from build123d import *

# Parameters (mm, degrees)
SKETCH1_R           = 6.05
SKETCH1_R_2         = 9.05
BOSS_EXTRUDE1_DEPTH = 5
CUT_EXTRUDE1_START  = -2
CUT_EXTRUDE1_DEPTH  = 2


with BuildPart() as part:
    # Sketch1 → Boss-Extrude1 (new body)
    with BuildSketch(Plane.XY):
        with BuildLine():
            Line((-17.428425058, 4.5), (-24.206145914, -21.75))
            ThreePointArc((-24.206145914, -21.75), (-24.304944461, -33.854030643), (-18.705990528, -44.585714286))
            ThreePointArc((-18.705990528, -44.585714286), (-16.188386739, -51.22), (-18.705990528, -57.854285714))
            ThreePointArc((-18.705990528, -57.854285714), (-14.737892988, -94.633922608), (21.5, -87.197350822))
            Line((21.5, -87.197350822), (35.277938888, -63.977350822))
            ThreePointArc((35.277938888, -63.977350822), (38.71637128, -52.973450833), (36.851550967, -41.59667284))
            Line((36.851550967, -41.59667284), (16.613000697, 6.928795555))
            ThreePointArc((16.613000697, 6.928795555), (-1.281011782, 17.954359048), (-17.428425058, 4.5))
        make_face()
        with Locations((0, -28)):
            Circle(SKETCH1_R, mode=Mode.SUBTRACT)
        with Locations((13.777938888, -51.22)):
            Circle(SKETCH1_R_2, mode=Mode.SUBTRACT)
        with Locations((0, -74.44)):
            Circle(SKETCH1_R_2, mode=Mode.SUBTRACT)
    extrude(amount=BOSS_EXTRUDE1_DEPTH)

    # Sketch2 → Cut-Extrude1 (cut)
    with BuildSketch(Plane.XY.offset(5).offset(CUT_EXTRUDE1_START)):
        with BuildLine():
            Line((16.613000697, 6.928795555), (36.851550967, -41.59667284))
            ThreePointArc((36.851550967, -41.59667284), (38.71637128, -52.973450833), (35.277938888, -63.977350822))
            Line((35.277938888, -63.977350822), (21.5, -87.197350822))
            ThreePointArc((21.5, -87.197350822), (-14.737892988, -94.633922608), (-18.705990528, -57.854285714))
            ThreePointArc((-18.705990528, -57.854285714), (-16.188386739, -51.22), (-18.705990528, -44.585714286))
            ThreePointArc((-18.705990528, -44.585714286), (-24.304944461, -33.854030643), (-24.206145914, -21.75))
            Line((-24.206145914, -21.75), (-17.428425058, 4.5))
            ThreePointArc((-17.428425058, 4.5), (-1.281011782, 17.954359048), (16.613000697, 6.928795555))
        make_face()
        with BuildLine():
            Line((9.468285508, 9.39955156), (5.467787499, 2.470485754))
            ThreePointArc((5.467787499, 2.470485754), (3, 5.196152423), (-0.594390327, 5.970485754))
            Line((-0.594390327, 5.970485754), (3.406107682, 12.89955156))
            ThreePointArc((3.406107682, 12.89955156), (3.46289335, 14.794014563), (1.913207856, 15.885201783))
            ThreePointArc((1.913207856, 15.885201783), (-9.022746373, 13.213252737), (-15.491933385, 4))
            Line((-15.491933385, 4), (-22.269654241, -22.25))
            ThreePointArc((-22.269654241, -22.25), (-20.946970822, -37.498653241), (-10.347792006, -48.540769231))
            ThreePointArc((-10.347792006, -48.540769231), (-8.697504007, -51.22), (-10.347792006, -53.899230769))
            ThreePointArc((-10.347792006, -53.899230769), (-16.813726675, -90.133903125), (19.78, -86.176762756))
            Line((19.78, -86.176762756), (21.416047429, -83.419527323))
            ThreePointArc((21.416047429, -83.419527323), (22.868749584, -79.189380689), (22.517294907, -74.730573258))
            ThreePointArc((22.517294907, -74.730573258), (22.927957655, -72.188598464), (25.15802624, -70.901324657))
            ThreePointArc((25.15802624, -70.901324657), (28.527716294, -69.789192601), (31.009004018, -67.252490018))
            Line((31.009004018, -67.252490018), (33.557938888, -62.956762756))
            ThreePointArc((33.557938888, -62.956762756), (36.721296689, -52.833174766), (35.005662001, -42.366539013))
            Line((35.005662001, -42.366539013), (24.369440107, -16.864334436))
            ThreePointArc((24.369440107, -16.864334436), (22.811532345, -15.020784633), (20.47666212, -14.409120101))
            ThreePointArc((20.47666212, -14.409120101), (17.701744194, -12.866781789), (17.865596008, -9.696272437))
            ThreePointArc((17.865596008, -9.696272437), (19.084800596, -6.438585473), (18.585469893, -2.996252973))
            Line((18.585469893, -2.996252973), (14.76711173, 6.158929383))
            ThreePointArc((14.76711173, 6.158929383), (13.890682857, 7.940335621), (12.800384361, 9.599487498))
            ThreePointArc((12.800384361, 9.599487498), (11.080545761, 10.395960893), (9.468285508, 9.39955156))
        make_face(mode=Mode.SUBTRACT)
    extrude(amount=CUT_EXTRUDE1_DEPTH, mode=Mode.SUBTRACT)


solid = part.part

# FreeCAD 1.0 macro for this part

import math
import FreeCAD as App
import Part
import Sketcher

V = App.Vector
Q = App.Units.Quantity

doc = App.newDocument("Part")
params = doc.addObject("Spreadsheet::Sheet", "Params")
for row, (alias, value) in enumerate([
    ("sketch1_radius", "25 mm"),
    ("sketch1_radius2", "10 mm"),
    ("sketch1_radius3", "18 mm"),
    ("sketch1_diameter", "18.1 mm"),
    ("sketch1_diameter2", "12.1 mm"),
    ("pad1_length", "5 mm"),
    ("sketch2_radius", "18 mm"),
    ("sketch2_radius2", "25 mm"),
    ("sketch2_radius3", "10 mm"),
    ("sketch2_radius4", "2 mm"),
    ("sketch2_radius5", "16 mm"),
    ("pocket1_length", "2 mm"),
], start=1):
    params.set(f"A{row}", alias)
    params.set(f"B{row}", "=" + value)
    params.setAlias(f"B{row}", alias)

body = doc.addObject("PartDesign::Body", "Body")

# Sketch on XY plane
sketch1 = body.newObject("Sketcher::SketchObject", "Sketch")
sketch1.AttachmentSupport = (doc.getObject("XY_Plane"), [""])
sketch1.MapMode = "FlatFace"
sketch1.addGeometry([
    Part.LineSegment(V(-17, 4, 0), V(-24, -22, 0)),  # 0
    Part.ArcOfCircle(Part.Circle(V(0, -28, 0), V(0, 0, 1), 25), math.radians(166), math.radians(222)),  # 1
    Part.ArcOfCircle(Part.Circle(V(-26, -51, 0), V(0, 0, 1), 10), math.radians(-42), math.radians(42)),  # 2
    Part.ArcOfCircle(Part.Circle(V(0, -74, 0), V(0, 0, 1), 25), math.radians(138), math.radians(329)),  # 3
    Part.LineSegment(V(22, -87, 0), V(35, -64, 0)),  # 4
    Part.ArcOfCircle(Part.Circle(V(14, -51, 0), V(0, 0, 1), 25), math.radians(-31), math.radians(23)),  # 5
    Part.LineSegment(V(37, -42, 0), V(17, 7, 0)),  # 6
    Part.ArcOfCircle(Part.Circle(V(0, 0, 0), V(0, 0, 1), 18), math.radians(23), math.radians(166)),  # 7
    Part.Circle(V(0, -74, 0), V(0, 0, 1), 9),  # 8
    Part.Circle(V(0, -28, 0), V(0, 0, 1), 6),  # 9
    Part.Circle(V(14, -51, 0), V(0, 0, 1), 9),  # 10
], False)
sketch1.addConstraint([
    Sketcher.Constraint("Tangent", 0, 2, 1, 1),
    Sketcher.Constraint("Tangent", 1, 2, 2, 2),
    Sketcher.Constraint("Tangent", 2, 1, 3, 1),
    Sketcher.Constraint("Tangent", 3, 2, 4, 1),
    Sketcher.Constraint("Tangent", 4, 2, 5, 1),
    Sketcher.Constraint("Tangent", 5, 2, 6, 1),
    Sketcher.Constraint("Tangent", 6, 2, 7, 1),
    Sketcher.Constraint("Tangent", 7, 2, 0, 1),
    Sketcher.Constraint("Coincident", 7, 3, -1, 1),
    Sketcher.Constraint("Coincident", 8, 3, 3, 3),
    Sketcher.Constraint("Coincident", 9, 3, 1, 3),
    Sketcher.Constraint("Coincident", 10, 3, 5, 3),
    Sketcher.Constraint("Equal", 1, 3),
    Sketcher.Constraint("Equal", 3, 5),
    Sketcher.Constraint("Equal", 8, 10),
    Sketcher.Constraint("PointOnObject", 1, 3, -2),
    Sketcher.Constraint("PointOnObject", 3, 3, -2),
    Sketcher.Constraint("Horizontal", 2, 3, 5, 3),
    Sketcher.Constraint("Radius", 1, Q("25 mm")),
    Sketcher.Constraint("Radius", 2, Q("10 mm")),
    Sketcher.Constraint("Radius", 7, Q("18 mm")),
    Sketcher.Constraint("Diameter", 8, Q("18.1 mm")),
    Sketcher.Constraint("Diameter", 9, Q("12.1 mm")),
    Sketcher.Constraint("Distance", 4, Q("27 mm")),
    Sketcher.Constraint("DistanceY", 1, 3, -1, 1, Q("28 mm")),
    Sketcher.Constraint("DistanceX", -1, 1, 3, 2, Q("21.5 mm")),
])
sketch1.setExpression("Constraints[18]", "Params.sketch1_radius")
sketch1.setExpression("Constraints[19]", "Params.sketch1_radius2")
sketch1.setExpression("Constraints[20]", "Params.sketch1_radius3")
sketch1.setExpression("Constraints[21]", "Params.sketch1_diameter")
sketch1.setExpression("Constraints[22]", "Params.sketch1_diameter2")
pad1 = body.newObject("PartDesign::Pad", "Pad")
pad1.Profile = sketch1
pad1.setExpression("Length", "Params.pad1_length")

# Sketch on XY plane
sketch2 = body.newObject("Sketcher::SketchObject", "Sketch001")
sketch2.AttachmentSupport = (doc.getObject("XY_Plane"), [""])
sketch2.MapMode = "FlatFace"
sketch2.AttachmentOffset = App.Placement(V(0, 0, 3), App.Rotation())
sketch2.addGeometry([
    Part.LineSegment(V(36.9, -41.6, 0), V(16.6, 6.9, 0)),  # 0
    Part.ArcOfCircle(Part.Circle(V(0, 0, 0), V(0, 0, 1), 18), math.radians(23), math.radians(166)),  # 1
    Part.LineSegment(V(-17.4, 4.5, 0), V(-24.2, -21.8, 0)),  # 2
    Part.ArcOfCircle(Part.Circle(V(0, -28, 0), V(0, 0, 1), 25), math.radians(166), math.radians(222)),  # 3
    Part.ArcOfCircle(Part.Circle(V(-26.2, -51.2, 0), V(0, 0, 1), 10), math.radians(-42), math.radians(42)),  # 4
    Part.ArcOfCircle(Part.Circle(V(0, -74.4, 0), V(0, 0, 1), 25), math.radians(138), math.radians(329)),  # 5
    Part.LineSegment(V(21.5, -87.2, 0), V(35.3, -64, 0)),  # 6
    Part.ArcOfCircle(Part.Circle(V(13.8, -51.2, 0), V(0, 0, 1), 25), math.radians(-31), math.radians(23)),  # 7
    Part.ArcOfCircle(Part.Circle(V(11.2, 8.4, 0), V(0, 0, 1), 2), math.radians(37), math.radians(150)),  # 8
    Part.ArcOfCircle(Part.Circle(V(0, 0, 0), V(0, 0, 1), 16), math.radians(22.64), math.radians(36.87)),  # 9
    Part.LineSegment(V(14.8, 6.2, 0), V(18.6, -3, 0)),  # 10
    Part.ArcOfCircle(Part.Circle(V(12.1, -5.7, 0), V(0, 0, 1), 7), math.radians(-35), math.radians(23)),  # 11
    Part.ArcOfCircle(Part.Circle(V(20.3, -11.4, 0), V(0, 0, 1), 3), math.radians(145), math.radians(273)),  # 12
    Part.ArcOfCircle(Part.Circle(V(20.7, -18.4, 0), V(0, 0, 1), 4), math.radians(23), math.radians(93)),  # 13
    Part.LineSegment(V(24.4, -16.9, 0), V(35, -42.4, 0)),  # 14
    Part.ArcOfCircle(Part.Circle(V(13.8, -51.2, 0), V(0, 0, 1), 23), math.radians(-31), math.radians(23)),  # 15
    Part.LineSegment(V(33.6, -63, 0), V(31, -67.3, 0)),  # 16
    Part.ArcOfCircle(Part.Circle(V(24.6, -63.4, 0), V(0, 0, 1), 7.5), math.radians(-85), math.radians(-31)),  # 17
    Part.ArcOfCircle(Part.Circle(V(25.4, -73.9, 0), V(0, 0, 1), 3), math.radians(95), math.radians(196)),  # 18
    Part.ArcOfCircle(Part.Circle(V(12, -77.8, 0), V(0, 0, 1), 11), math.radians(-31), math.radians(16)),  # 19
    Part.LineSegment(V(21.4, -83.4, 0), V(19.8, -86.2, 0)),  # 20
    Part.ArcOfCircle(Part.Circle(V(0, -74.4, 0), V(0, 0, 1), 23), math.radians(117), math.radians(329)),  # 21
    Part.ArcOfCircle(Part.Circle(V(-11.7, -51.2, 0), V(0, 0, 1), 3), math.radians(-63), math.radians(63)),  # 22
    Part.ArcOfCircle(Part.Circle(V(0, -28, 0), V(0, 0, 1), 23), math.radians(166), math.radians(243)),  # 23
    Part.LineSegment(V(-22.3, -22.2, 0), V(-15.5, 4, 0)),  # 24
    Part.ArcOfCircle(Part.Circle(V(0, 0, 0), V(0, 0, 1), 16), math.radians(83), math.radians(166)),  # 25
    Part.ArcOfCircle(Part.Circle(V(1.7, 13.9, 0), V(0, 0, 1), 2), math.radians(-30), math.radians(83)),  # 26
    Part.LineSegment(V(3.4, 12.9, 0), V(-0.6, 6, 0)),  # 27
    Part.ArcOfCircle(Part.Circle(V(0, 0, 0), V(0, 0, 1), 6), math.radians(24), math.radians(96)),  # 28
    Part.LineSegment(V(5.5, 2.5, 0), V(9.5, 9.4, 0)),  # 29
], False)
sketch2.addConstraint([
    Sketcher.Constraint("Tangent", 0, 2, 1, 1),
    Sketcher.Constraint("Tangent", 1, 2, 2, 1),
    Sketcher.Constraint("Tangent", 2, 2, 3, 1),
    Sketcher.Constraint("Tangent", 3, 2, 4, 2),
    Sketcher.Constraint("Tangent", 4, 1, 5, 1),
    Sketcher.Constraint("Tangent", 5, 2, 6, 1),
    Sketcher.Constraint("Tangent", 6, 2, 7, 1),
    Sketcher.Constraint("Tangent", 7, 2, 0, 1),
    Sketcher.Constraint("Tangent", 8, 1, 9, 2),
    Sketcher.Constraint("Tangent", 9, 1, 10, 1),
    Sketcher.Constraint("Tangent", 10, 2, 11, 2),
    Sketcher.Constraint("Tangent", 11, 1, 12, 1),
    Sketcher.Constraint("Tangent", 12, 2, 13, 2),
    Sketcher.Constraint("Tangent", 13, 1, 14, 1),
    Sketcher.Constraint("Tangent", 14, 2, 15, 2),
    Sketcher.Constraint("Tangent", 15, 1, 16, 1),
    Sketcher.Constraint("Tangent", 16, 2, 17, 2),
    Sketcher.Constraint("Tangent", 17, 1, 18, 1),
    Sketcher.Constraint("Tangent", 18, 2, 19, 2),
    Sketcher.Constraint("Tangent", 19, 1, 20, 1),
    Sketcher.Constraint("Tangent", 20, 2, 21, 2),
    Sketcher.Constraint("Tangent", 21, 1, 22, 1),
    Sketcher.Constraint("Tangent", 22, 2, 23, 2),
    Sketcher.Constraint("Tangent", 23, 1, 24, 1),
    Sketcher.Constraint("Tangent", 24, 2, 25, 2),
    Sketcher.Constraint("Tangent", 25, 1, 26, 2),
    Sketcher.Constraint("Tangent", 26, 1, 27, 1),
    Sketcher.Constraint("Coincident", 27, 2, 28, 2),
    Sketcher.Constraint("Coincident", 28, 1, 29, 1),
    Sketcher.Constraint("Tangent", 29, 2, 8, 2),
    Sketcher.Constraint("Coincident", 1, 3, -1, 1),
    Sketcher.Constraint("Coincident", 9, 3, -1, 1),
    Sketcher.Constraint("Coincident", 25, 3, -1, 1),
    Sketcher.Constraint("Coincident", 28, 3, -1, 1),
    Sketcher.Constraint("Coincident", 15, 3, 7, 3),
    Sketcher.Constraint("Coincident", 21, 3, 5, 3),
    Sketcher.Constraint("Coincident", 23, 3, 3, 3),
    Sketcher.Constraint("Equal", 3, 5),
    Sketcher.Constraint("Equal", 5, 7),
    Sketcher.Constraint("Equal", 12, 18),
    Sketcher.Constraint("Equal", 15, 21),
    Sketcher.Constraint("Equal", 18, 22),
    Sketcher.Constraint("Equal", 21, 23),
    Sketcher.Constraint("Equal", 9, 25),
    Sketcher.Constraint("Equal", 8, 26),
    Sketcher.Constraint("PointOnObject", 3, 3, -2),
    Sketcher.Constraint("PointOnObject", 5, 3, -2),
    Sketcher.Constraint("Parallel", 0, 10),
    Sketcher.Constraint("Parallel", 10, 14),
    Sketcher.Constraint("Parallel", 6, 16),
    Sketcher.Constraint("Parallel", 16, 20),
    Sketcher.Constraint("Parallel", 2, 24),
    Sketcher.Constraint("Parallel", 27, 29),
    Sketcher.Constraint("Horizontal", 4, 3, 7, 3),
    Sketcher.Constraint("Equal", 27, 29),
    Sketcher.Constraint("Radius", 1, Q("18 mm")),
    Sketcher.Constraint("Radius", 3, Q("25 mm")),
    Sketcher.Constraint("Radius", 4, Q("10 mm")),
    Sketcher.Constraint("Radius", 8, Q("2 mm")),
    Sketcher.Constraint("Radius", 9, Q("16 mm")),
    Sketcher.Constraint("Radius", 11, Q("7 mm")),
    Sketcher.Constraint("Radius", 12, Q("3 mm")),
    Sketcher.Constraint("Radius", 13, Q("4 mm")),
    Sketcher.Constraint("Radius", 19, Q("11 mm")),
    Sketcher.Constraint("Radius", 28, Q("6 mm")),
    Sketcher.Constraint("Radius", 17, Q("7.5 mm")),
    Sketcher.Constraint("Angle", 27, Q("-120 deg")),
    Sketcher.Constraint("Distance", 6, Q("27 mm")),
    Sketcher.Constraint("DistanceY", 3, 3, -1, 1, Q("28 mm")),
    Sketcher.Constraint("DistanceX", -1, 1, 5, 2, Q("21.5 mm")),
    Sketcher.Constraint("DistanceY", 8, 3, 26, 3, Q("5.5 mm")),
    Sketcher.Constraint("DistanceX", 12, 2, 13, 3, Q("0.201 mm")),
    Sketcher.Constraint("DistanceX", 26, 3, 11, 3, Q("10.450802 mm")),
    Sketcher.Constraint("Distance", 16, Q("4.995032 mm")),
    Sketcher.Constraint("DistanceY", 18, 3, -1, 1, Q("73.891741 mm")),
])
sketch2.setExpression("Constraints[55]", "Params.sketch2_radius")
sketch2.setExpression("Constraints[56]", "Params.sketch2_radius2")
sketch2.setExpression("Constraints[57]", "Params.sketch2_radius3")
sketch2.setExpression("Constraints[58]", "Params.sketch2_radius4")
sketch2.setExpression("Constraints[59]", "Params.sketch2_radius5")
pocket1 = body.newObject("PartDesign::Pocket", "Pocket")
pocket1.Profile = sketch2
pocket1.setExpression("Length", "Params.pocket1_length")
pocket1.Reversed = True

doc.recompute()
